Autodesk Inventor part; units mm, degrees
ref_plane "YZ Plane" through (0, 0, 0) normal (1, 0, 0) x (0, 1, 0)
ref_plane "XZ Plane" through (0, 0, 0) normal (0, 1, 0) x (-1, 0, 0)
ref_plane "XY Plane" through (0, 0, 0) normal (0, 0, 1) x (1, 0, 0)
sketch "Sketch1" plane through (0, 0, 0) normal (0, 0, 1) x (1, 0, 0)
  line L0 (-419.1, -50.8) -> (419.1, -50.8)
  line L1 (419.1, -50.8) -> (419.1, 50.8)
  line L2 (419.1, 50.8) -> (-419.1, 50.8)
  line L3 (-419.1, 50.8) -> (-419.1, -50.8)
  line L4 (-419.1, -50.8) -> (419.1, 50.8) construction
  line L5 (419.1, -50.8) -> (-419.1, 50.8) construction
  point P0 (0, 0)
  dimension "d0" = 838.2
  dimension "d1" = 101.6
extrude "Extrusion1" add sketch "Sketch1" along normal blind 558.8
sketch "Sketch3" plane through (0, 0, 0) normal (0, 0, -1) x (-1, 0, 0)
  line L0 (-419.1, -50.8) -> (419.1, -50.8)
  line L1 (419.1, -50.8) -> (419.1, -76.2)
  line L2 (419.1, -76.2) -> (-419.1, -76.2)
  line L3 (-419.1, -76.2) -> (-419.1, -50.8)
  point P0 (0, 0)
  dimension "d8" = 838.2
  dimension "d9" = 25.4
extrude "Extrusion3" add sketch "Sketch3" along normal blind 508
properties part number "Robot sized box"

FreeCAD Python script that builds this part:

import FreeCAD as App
import Part
import Sketcher

V = App.Vector
Q = App.Units.Quantity


def add_polygon(sketch, points):
    """Adds a closed chain of lines whose ends are joined by coincident constraints."""
    first, n = sketch.GeometryCount, len(points)
    for a, b in zip(points, points[1:] + points[:1]):
        sketch.addGeometry(Part.LineSegment(App.Vector(*a, 0), App.Vector(*b, 0)), False)
    for i in range(n):
        sketch.addConstraint(Sketcher.Constraint("Coincident", first + i, 2, first + (i + 1) % n, 1))

doc = App.newDocument("Part")
body = doc.addObject("PartDesign::Body", "Body")
body.AllowCompound = True

sketch1 = doc.addObject("Sketcher::SketchObject", "Sketch")
body.addObject(sketch1)
sketch1.AttachmentSupport = (doc.XY_Plane, [""])
sketch1.MapMode = "FlatFace"
add_polygon(sketch1, [(-419, 51), (-419, -51), (419, -51), (419, 51)])
sketch1.addConstraint(Sketcher.Constraint("Vertical", 0))
sketch1.addConstraint(Sketcher.Constraint("Horizontal", 1))
sketch1.addConstraint(Sketcher.Constraint("Vertical", 2))
sketch1.addConstraint(Sketcher.Constraint("Horizontal", 3))
sketch1.addConstraint(Sketcher.Constraint("Symmetric", 0, 2, 2, 2, -1, 1))
sketch1.addConstraint(Sketcher.Constraint("DistanceX", 1, 1, 1, 2, Q("33 in")))
sketch1.addConstraint(Sketcher.Constraint("DistanceY", 0, 2, 0, 1, Q("4 in")))
pad1 = doc.addObject("PartDesign::Pad", "Pad")
body.addObject(pad1)
pad1.Profile = sketch1
pad1.Length = Q("22 in")

sketch2 = doc.addObject("Sketcher::SketchObject", "Sketch001")
body.addObject(sketch2)
sketch2.AttachmentSupport = (doc.XY_Plane, [""])
sketch2.MapMode = "FlatFace"
add_polygon(sketch2, [(-419, -51), (419, -51), (419, -76), (-419, -76)])
sketch2.addConstraint(Sketcher.Constraint("Horizontal", 0))
sketch2.addConstraint(Sketcher.Constraint("Vertical", 1))
sketch2.addConstraint(Sketcher.Constraint("Horizontal", 2))
sketch2.addConstraint(Sketcher.Constraint("Vertical", 3))
sketch2.addConstraint(Sketcher.Constraint("DistanceX", 0, 1, 0, 2, Q("33 in")))
sketch2.addConstraint(Sketcher.Constraint("DistanceY", 1, 2, 1, 1, Q("1 in")))
sketch2.addConstraint(Sketcher.Constraint("DistanceY", 0, 2, -1, 1, Q("2 in")))
sketch2.addConstraint(Sketcher.Constraint("DistanceX", -1, 1, 0, 2, Q("16.5 in")))
pad2 = doc.addObject("PartDesign::Pad", "Pad001")
body.addObject(pad2)
pad2.Profile = sketch2
pad2.Length = Q("20 in")
pad2.Reversed = True

doc.recompute()
